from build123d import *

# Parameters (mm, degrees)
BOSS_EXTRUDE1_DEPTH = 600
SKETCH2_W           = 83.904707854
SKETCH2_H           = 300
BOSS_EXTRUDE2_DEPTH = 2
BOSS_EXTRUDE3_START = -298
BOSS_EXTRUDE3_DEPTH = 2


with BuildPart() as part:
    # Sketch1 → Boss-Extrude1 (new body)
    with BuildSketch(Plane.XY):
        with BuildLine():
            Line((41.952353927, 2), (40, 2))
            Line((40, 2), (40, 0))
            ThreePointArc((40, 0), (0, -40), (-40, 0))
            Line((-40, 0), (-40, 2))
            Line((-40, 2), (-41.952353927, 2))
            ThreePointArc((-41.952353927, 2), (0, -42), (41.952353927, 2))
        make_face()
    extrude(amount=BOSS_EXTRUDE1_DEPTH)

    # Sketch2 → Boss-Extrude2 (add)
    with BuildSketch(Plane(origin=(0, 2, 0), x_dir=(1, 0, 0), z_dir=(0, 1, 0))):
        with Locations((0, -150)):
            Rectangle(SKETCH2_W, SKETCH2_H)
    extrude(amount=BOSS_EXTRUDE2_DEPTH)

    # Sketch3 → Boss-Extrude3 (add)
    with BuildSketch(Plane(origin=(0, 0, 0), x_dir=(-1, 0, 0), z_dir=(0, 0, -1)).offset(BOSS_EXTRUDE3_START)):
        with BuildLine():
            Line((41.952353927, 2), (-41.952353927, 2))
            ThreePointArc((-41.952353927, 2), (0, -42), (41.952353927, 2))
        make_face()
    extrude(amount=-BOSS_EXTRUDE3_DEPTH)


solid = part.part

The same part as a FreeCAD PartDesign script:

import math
import FreeCAD as App
import Part
import Sketcher

V = App.Vector
Q = App.Units.Quantity

doc = App.newDocument("Part")
body = doc.addObject("PartDesign::Body", "Body")

sketch1 = doc.addObject("Sketcher::SketchObject", "Sketch")
body.addObject(sketch1)
sketch1.AttachmentSupport = (doc.XY_Plane, [""])
sketch1.MapMode = "FlatFace"
sketch1.addGeometry([
    Part.LineSegment(V(42, 2, 0), V(40, 2, 0)),
    Part.LineSegment(V(40, 2, 0), V(40, 0, 0)),
    Part.ArcOfCircle(Part.Circle(V(0, 0, 0), V(0, 0, 1), 40), math.radians(180), math.radians(360)),
    Part.LineSegment(V(-40, 0, 0), V(-40, 2, 0)),
    Part.LineSegment(V(-40, 2, 0), V(-42, 2, 0)),
    Part.ArcOfCircle(Part.Circle(V(0, 0, 0), V(0, 0, 1), 42), math.radians(177), math.radians(363)),
], False)
sketch1.addConstraint([
    Sketcher.Constraint("Coincident", 0, 2, 1, 1),
    Sketcher.Constraint("Tangent", 1, 2, 2, 2),
    Sketcher.Constraint("Tangent", 2, 1, 3, 1),
    Sketcher.Constraint("Coincident", 3, 2, 4, 1),
    Sketcher.Constraint("Coincident", 4, 2, 5, 1),
    Sketcher.Constraint("Coincident", 5, 2, 0, 1),
    Sketcher.Constraint("Horizontal", 0),
    Sketcher.Constraint("Vertical", 1),
    Sketcher.Constraint("Vertical", 3),
    Sketcher.Constraint("Horizontal", 4),
    Sketcher.Constraint("Coincident", 2, 3, -1, 1),
    Sketcher.Constraint("Coincident", 5, 3, -1, 1),
    Sketcher.Constraint("Horizontal", 0, 2, 3, 2),
    Sketcher.Constraint("Radius", 2, Q("40 mm")),
    Sketcher.Constraint("Radius", 5, Q("42 mm")),
    Sketcher.Constraint("DistanceY", 1, 2, 1, 1, Q("2 mm")),
])
pad1 = doc.addObject("PartDesign::Pad", "Pad")
body.addObject(pad1)
pad1.Profile = sketch1
pad1.Length = 600

sketch2 = doc.addObject("Sketcher::SketchObject", "Sketch001")
body.addObject(sketch2)
sketch2.AttachmentSupport = (doc.XZ_Plane, [""])
sketch2.MapMode = "FlatFace"
sketch2.AttachmentOffset = App.Placement(V(0, 0, -2), App.Rotation())
sketch2.addGeometry([
    Part.LineSegment(V(-42, 0, 0), V(-42, 300, 0)),
    Part.LineSegment(V(-42, 300, 0), V(42, 300, 0)),
    Part.LineSegment(V(42, 300, 0), V(42, 0, 0)),
    Part.LineSegment(V(42, 0, 0), V(-42, 0, 0)),
], False)
sketch2.addConstraint([
    Sketcher.Constraint("Coincident", 0, 2, 1, 1),
    Sketcher.Constraint("Coincident", 1, 2, 2, 1),
    Sketcher.Constraint("Coincident", 2, 2, 3, 1),
    Sketcher.Constraint("Coincident", 3, 2, 0, 1),
    Sketcher.Constraint("Vertical", 0),
    Sketcher.Constraint("Horizontal", 1),
    Sketcher.Constraint("Vertical", 2),
    Sketcher.Constraint("Horizontal", 3),
    Sketcher.Constraint("Symmetric", 2, 2, 3, 2, -1, 1),
    Sketcher.Constraint("DistanceY", 0, 1, 0, 2, Q("300 mm")),
    Sketcher.Constraint("DistanceX", 1, 1, 1, 2, Q("83.904708 mm")),
])
pad2 = doc.addObject("PartDesign::Pad", "Pad001")
body.addObject(pad2)
pad2.Profile = sketch2
pad2.Length = 2
pad2.Reversed = True

sketch3 = doc.addObject("Sketcher::SketchObject", "Sketch002")
body.addObject(sketch3)
sketch3.AttachmentSupport = (doc.XY_Plane, [""])
sketch3.MapMode = "FlatFace"
sketch3.AttachmentOffset = App.Placement(V(0, 0, 298), App.Rotation())
sketch3.addGeometry([
    Part.LineSegment(V(-42, 2, 0), V(42, 2, 0)),
    Part.ArcOfCircle(Part.Circle(V(0, 0, 0), V(0, 0, 1), 42), math.radians(177), math.radians(363)),
], False)
sketch3.addConstraint([
    Sketcher.Constraint("Coincident", 0, 1, 1, 1),
    Sketcher.Constraint("Coincident", 1, 2, 0, 2),
    Sketcher.Constraint("Horizontal", 0),
    Sketcher.Constraint("Coincident", 1, 3, -1, 1),
    Sketcher.Constraint("Radius", 1, Q("42 mm")),
    Sketcher.Constraint("DistanceY", -1, 1, 0, 1, Q("2 mm")),
])
pad3 = doc.addObject("PartDesign::Pad", "Pad002")
body.addObject(pad3)
pad3.Profile = sketch3
pad3.Length = 2

doc.recompute()
